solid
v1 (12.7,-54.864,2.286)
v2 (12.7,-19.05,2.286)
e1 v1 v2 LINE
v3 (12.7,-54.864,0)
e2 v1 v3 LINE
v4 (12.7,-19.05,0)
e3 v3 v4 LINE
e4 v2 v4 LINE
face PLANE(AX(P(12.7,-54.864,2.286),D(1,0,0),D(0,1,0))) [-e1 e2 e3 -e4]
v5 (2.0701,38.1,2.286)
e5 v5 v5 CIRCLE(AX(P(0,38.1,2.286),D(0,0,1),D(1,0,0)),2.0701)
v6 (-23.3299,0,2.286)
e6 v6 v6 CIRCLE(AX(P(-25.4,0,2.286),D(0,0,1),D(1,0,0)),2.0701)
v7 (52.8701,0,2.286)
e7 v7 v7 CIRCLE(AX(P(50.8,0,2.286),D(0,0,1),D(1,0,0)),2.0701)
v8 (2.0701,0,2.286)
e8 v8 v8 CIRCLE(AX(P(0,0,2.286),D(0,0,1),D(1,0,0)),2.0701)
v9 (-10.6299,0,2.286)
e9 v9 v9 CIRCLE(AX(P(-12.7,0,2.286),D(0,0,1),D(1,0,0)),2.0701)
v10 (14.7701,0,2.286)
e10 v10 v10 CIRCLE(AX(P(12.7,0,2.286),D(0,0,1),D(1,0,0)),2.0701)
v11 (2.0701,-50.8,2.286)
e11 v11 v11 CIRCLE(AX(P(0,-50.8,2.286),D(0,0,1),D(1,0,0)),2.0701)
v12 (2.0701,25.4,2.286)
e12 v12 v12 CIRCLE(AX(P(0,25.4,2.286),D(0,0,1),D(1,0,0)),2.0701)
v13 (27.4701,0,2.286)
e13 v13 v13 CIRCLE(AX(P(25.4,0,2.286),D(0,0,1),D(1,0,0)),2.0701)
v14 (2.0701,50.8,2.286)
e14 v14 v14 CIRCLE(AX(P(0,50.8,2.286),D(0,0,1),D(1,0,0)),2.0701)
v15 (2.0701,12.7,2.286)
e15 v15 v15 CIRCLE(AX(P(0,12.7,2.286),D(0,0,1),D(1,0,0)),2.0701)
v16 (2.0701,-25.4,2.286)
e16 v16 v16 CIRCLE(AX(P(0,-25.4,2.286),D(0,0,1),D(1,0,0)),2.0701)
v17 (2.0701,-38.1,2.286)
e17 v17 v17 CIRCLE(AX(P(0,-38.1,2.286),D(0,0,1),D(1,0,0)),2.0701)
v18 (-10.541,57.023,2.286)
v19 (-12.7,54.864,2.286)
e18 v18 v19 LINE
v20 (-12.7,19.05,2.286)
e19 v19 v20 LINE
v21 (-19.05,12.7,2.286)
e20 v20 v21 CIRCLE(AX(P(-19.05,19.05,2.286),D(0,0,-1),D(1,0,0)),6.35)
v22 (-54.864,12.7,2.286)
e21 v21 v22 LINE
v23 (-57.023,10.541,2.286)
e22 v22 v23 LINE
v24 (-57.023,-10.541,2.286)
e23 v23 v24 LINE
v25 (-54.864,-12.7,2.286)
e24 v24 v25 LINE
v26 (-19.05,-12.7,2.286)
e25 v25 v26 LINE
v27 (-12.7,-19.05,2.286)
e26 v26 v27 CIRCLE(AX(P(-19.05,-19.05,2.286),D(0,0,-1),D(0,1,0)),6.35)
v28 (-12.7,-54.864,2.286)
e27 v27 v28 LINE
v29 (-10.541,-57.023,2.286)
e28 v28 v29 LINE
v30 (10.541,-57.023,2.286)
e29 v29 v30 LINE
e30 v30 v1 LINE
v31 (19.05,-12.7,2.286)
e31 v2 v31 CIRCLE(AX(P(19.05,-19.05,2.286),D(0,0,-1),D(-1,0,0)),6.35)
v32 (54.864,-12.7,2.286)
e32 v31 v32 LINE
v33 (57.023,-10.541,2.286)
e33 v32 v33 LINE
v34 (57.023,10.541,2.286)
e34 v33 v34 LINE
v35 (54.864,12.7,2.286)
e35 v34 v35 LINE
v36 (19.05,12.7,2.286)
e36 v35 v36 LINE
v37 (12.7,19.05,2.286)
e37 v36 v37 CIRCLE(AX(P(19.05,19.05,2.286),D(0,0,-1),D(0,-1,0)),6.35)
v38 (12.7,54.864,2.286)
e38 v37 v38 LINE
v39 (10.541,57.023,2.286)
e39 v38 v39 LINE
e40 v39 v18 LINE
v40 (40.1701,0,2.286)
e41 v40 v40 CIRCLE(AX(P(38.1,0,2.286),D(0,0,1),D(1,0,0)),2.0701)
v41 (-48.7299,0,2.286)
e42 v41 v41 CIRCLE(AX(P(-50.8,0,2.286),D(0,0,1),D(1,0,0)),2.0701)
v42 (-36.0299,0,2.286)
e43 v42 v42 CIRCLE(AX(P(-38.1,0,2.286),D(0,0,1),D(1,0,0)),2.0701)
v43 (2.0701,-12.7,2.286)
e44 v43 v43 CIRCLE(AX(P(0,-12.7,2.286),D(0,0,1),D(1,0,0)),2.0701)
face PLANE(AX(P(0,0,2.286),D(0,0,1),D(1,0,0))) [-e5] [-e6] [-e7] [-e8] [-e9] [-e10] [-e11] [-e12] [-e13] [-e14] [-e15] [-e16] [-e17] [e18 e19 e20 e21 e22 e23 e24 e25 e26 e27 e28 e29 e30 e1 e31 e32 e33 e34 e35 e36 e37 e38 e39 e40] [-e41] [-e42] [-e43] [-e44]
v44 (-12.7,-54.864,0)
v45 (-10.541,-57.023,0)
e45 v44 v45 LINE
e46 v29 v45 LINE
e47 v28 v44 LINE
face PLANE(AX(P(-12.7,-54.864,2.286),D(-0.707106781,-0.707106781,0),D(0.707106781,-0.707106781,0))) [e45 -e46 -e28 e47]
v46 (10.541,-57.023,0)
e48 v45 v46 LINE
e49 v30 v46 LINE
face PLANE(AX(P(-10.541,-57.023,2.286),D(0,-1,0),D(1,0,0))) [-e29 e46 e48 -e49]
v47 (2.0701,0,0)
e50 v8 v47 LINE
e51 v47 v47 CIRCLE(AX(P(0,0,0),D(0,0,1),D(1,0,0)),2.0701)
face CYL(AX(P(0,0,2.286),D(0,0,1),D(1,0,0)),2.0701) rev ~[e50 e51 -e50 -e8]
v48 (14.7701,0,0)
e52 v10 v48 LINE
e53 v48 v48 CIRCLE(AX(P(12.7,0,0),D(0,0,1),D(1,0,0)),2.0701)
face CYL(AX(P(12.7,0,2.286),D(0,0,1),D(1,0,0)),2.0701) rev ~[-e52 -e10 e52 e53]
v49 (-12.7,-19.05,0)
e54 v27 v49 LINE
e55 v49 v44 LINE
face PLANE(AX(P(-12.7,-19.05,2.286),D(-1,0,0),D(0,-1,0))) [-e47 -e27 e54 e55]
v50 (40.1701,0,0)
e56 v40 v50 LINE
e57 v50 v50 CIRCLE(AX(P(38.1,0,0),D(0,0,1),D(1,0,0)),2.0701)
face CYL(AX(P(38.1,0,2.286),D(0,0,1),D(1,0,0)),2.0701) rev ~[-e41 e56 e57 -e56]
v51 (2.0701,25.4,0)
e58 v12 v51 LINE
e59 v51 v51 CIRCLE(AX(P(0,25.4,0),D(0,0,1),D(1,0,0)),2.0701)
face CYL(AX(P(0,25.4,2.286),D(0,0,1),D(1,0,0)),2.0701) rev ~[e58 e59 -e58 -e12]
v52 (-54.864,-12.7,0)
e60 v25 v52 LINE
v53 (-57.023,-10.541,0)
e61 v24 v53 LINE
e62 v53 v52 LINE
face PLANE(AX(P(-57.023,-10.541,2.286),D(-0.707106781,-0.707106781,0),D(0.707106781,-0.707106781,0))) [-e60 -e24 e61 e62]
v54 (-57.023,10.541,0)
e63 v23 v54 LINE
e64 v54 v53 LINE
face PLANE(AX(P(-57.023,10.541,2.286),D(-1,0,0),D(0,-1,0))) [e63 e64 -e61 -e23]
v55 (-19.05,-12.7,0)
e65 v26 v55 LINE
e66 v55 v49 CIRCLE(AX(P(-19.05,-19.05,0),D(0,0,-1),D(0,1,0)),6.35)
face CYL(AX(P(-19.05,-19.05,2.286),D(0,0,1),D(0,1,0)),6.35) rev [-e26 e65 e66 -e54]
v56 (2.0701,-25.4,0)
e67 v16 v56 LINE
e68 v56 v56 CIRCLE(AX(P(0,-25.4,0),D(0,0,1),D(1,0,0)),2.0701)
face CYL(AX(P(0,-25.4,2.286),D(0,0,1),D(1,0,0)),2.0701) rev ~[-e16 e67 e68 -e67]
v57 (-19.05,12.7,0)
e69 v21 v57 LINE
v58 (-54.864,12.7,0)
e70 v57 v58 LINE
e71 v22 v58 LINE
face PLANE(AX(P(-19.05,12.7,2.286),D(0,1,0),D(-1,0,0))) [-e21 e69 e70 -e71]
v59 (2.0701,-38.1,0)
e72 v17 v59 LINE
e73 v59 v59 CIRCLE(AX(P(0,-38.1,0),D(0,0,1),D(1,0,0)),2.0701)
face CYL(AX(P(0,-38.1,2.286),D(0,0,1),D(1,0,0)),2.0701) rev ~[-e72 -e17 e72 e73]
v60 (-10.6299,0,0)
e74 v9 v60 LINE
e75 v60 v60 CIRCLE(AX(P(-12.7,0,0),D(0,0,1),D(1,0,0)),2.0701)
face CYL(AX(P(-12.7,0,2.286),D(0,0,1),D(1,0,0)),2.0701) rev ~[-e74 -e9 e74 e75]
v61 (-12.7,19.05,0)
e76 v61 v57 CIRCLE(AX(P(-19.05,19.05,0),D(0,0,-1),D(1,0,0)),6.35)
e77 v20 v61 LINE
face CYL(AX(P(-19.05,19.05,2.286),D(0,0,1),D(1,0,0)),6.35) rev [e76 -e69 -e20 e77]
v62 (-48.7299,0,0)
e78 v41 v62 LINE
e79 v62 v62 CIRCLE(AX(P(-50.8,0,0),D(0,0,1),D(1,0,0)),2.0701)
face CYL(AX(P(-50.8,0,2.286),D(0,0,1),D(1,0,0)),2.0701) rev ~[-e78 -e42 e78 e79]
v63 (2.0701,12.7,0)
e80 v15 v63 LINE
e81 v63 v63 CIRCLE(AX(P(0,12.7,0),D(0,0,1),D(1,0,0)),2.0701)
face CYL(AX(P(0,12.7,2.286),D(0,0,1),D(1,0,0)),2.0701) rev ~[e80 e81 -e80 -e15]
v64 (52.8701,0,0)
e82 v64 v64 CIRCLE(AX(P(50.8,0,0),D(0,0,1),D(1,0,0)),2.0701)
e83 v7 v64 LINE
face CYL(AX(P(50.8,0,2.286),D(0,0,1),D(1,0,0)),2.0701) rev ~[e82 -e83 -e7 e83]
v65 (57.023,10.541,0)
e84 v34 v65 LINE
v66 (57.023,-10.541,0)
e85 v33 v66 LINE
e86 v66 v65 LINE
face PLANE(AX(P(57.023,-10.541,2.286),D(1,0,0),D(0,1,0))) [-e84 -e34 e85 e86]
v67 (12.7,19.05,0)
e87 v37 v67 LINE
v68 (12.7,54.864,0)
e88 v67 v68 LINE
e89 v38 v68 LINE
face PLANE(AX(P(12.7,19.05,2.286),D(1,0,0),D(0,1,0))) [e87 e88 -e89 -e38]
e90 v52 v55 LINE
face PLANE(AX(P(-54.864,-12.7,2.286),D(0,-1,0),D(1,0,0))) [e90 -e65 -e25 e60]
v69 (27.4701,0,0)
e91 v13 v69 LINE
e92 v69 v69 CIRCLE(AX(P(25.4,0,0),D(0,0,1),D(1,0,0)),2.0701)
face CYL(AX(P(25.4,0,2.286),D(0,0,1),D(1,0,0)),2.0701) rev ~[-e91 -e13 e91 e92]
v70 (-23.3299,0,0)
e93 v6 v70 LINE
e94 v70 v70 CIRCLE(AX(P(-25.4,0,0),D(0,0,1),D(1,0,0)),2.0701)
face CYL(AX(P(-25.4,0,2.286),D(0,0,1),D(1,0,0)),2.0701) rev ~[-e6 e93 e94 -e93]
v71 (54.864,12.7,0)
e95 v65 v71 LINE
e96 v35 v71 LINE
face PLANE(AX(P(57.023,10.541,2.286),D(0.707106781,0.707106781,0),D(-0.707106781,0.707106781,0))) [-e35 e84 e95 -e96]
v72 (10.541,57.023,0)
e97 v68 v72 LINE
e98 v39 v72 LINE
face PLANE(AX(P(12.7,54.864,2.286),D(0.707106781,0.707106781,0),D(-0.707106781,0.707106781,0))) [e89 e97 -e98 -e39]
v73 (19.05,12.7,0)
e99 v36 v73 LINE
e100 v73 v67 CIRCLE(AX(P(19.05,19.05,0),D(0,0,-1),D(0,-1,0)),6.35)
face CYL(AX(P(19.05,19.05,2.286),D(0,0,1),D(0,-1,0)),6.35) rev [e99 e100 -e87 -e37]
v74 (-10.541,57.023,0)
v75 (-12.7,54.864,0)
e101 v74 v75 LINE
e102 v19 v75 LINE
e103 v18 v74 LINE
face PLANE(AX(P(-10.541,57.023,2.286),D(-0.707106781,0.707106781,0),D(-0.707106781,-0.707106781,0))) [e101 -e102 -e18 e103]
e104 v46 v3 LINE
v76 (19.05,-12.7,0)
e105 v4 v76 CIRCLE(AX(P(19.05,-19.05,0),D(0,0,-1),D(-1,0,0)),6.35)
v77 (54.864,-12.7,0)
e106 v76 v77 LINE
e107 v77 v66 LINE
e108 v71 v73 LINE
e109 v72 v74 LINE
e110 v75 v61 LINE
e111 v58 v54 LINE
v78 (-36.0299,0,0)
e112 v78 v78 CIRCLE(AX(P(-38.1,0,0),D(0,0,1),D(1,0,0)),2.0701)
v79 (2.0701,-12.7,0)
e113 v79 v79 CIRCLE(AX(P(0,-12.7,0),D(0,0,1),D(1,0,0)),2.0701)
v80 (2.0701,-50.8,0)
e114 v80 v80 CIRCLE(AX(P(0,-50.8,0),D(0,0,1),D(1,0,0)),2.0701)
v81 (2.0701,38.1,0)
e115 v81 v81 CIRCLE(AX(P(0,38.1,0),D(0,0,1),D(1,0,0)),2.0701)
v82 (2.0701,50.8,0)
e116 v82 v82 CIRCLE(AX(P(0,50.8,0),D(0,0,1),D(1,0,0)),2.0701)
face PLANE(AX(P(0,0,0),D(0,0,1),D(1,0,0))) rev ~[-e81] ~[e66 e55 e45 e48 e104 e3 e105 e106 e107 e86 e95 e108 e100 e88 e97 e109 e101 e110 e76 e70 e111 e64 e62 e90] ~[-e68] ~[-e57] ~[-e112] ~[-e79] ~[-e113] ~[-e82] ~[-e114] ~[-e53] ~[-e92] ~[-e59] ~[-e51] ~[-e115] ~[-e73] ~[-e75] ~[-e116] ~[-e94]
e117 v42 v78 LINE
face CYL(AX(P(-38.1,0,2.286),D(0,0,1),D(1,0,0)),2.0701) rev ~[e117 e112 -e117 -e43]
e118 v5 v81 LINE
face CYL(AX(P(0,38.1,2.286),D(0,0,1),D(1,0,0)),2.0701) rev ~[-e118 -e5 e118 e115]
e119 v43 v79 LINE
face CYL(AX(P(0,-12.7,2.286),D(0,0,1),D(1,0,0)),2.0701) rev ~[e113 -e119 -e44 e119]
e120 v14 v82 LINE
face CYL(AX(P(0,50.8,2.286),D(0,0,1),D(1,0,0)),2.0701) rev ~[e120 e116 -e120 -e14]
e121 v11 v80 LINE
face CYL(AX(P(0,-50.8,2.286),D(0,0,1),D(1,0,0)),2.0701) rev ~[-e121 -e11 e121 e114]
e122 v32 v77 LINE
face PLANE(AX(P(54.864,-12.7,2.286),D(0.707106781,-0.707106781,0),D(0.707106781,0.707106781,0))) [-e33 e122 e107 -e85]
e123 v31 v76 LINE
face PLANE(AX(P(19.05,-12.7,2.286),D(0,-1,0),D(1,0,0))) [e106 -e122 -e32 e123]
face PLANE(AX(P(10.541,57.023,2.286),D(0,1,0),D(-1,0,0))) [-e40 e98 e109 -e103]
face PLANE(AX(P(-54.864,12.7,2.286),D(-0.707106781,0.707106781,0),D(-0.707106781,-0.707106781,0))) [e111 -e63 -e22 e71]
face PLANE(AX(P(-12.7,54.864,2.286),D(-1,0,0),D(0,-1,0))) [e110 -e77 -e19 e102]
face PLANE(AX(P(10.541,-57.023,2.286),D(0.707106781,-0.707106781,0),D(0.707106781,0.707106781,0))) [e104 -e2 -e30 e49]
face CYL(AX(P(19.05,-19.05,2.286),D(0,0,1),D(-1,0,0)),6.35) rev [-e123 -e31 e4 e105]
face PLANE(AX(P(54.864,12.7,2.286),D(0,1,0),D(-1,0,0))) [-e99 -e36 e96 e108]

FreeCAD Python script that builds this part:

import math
import FreeCAD as App
import Part
import Sketcher

V = App.Vector
Q = App.Units.Quantity

doc = App.newDocument("Part")
body = doc.addObject("PartDesign::Body", "Body")

# Sketch on XY plane
sketch1 = body.newObject("Sketcher::SketchObject", "Sketch")
sketch1.AttachmentSupport = (doc.getObject("XY_Plane"), [""])
sketch1.MapMode = "FlatFace"
sketch1.AttachmentOffset = App.Placement(V(0, 0, 0.09 * 25.4), App.Rotation())
sketch1.addGeometry([
    Part.LineSegment(V(57, 10.5, 0), V(54.9, 12.7, 0)),  # 0
    Part.LineSegment(V(54.9, 12.7, 0), V(19.1, 12.7, 0)),  # 1
    Part.ArcOfCircle(Part.Circle(V(19, 19, 0), V(0, 0, 1), 6.3), math.radians(180), math.radians(270)),  # 2
    Part.LineSegment(V(12.7, 19.1, 0), V(12.7, 54.9, 0)),  # 3
    Part.LineSegment(V(12.7, 54.9, 0), V(10.5, 57, 0)),  # 4
    Part.LineSegment(V(10.5, 57, 0), V(-10.5, 57, 0)),  # 5
    Part.LineSegment(V(-10.5, 57, 0), V(-12.7, 54.9, 0)),  # 6
    Part.LineSegment(V(-12.7, 54.9, 0), V(-12.7, 19.1, 0)),  # 7
    Part.ArcOfCircle(Part.Circle(V(-19, 19, 0), V(0, 0, 1), 6.3), math.radians(-90), math.radians(0)),  # 8
    Part.LineSegment(V(-19.1, 12.7, 0), V(-54.9, 12.7, 0)),  # 9
    Part.LineSegment(V(-54.9, 12.7, 0), V(-57, 10.5, 0)),  # 10
    Part.LineSegment(V(-57, 10.5, 0), V(-57, -10.5, 0)),  # 11
    Part.LineSegment(V(-57, -10.5, 0), V(-54.9, -12.7, 0)),  # 12
    Part.LineSegment(V(-54.9, -12.7, 0), V(-19.1, -12.7, 0)),  # 13
    Part.ArcOfCircle(Part.Circle(V(-19, -19, 0), V(0, 0, 1), 6.3), math.radians(0), math.radians(90)),  # 14
    Part.LineSegment(V(-12.7, -19.1, 0), V(-12.7, -54.9, 0)),  # 15
    Part.LineSegment(V(-12.7, -54.9, 0), V(-10.5, -57, 0)),  # 16
    Part.LineSegment(V(-10.5, -57, 0), V(10.5, -57, 0)),  # 17
    Part.LineSegment(V(10.5, -57, 0), V(12.7, -54.9, 0)),  # 18
    Part.LineSegment(V(12.7, -54.9, 0), V(12.7, -19.1, 0)),  # 19
    Part.ArcOfCircle(Part.Circle(V(19, -19, 0), V(0, 0, 1), 6.3), math.radians(90), math.radians(180)),  # 20
    Part.LineSegment(V(19.1, -12.7, 0), V(54.9, -12.7, 0)),  # 21
    Part.LineSegment(V(54.9, -12.7, 0), V(57, -10.5, 0)),  # 22
    Part.LineSegment(V(57, -10.5, 0), V(57, 10.5, 0)),  # 23
    Part.Circle(V(0, -50.8, 0), V(0, 0, 1), 2.1),  # 24
    Part.Circle(V(0, -38.1, 0), V(0, 0, 1), 2.1),  # 25
    Part.Circle(V(-50.8, 0, 0), V(0, 0, 1), 2.1),  # 26
    Part.Circle(V(-38.1, 0, 0), V(0, 0, 1), 2.1),  # 27
    Part.Circle(V(0, -25.4, 0), V(0, 0, 1), 2.1),  # 28
    Part.Circle(V(-25.4, 0, 0), V(0, 0, 1), 2.1),  # 29
    Part.Circle(V(0, -12.7, 0), V(0, 0, 1), 2.1),  # 30
    Part.Circle(V(-12.7, 0, 0), V(0, 0, 1), 2.1),  # 31
    Part.Circle(V(0, 0, 0), V(0, 0, 1), 2.1),  # 32
    Part.Circle(V(12.7, 0, 0), V(0, 0, 1), 2.1),  # 33
    Part.Circle(V(25.4, 0, 0), V(0, 0, 1), 2.1),  # 34
    Part.Circle(V(38.1, 0, 0), V(0, 0, 1), 2.1),  # 35
    Part.Circle(V(50.8, 0, 0), V(0, 0, 1), 2.1),  # 36
    Part.Circle(V(0, 12.7, 0), V(0, 0, 1), 2.1),  # 37
    Part.Circle(V(0, 25.4, 0), V(0, 0, 1), 2.1),  # 38
    Part.Circle(V(0, 38.1, 0), V(0, 0, 1), 2.1),  # 39
    Part.Circle(V(0, 50.8, 0), V(0, 0, 1), 2.1),  # 40
], False)
sketch1.addConstraint([
    Sketcher.Constraint("Coincident", 0, 2, 1, 1),
    Sketcher.Constraint("Tangent", 1, 2, 2, 2),
    Sketcher.Constraint("Tangent", 2, 1, 3, 1),
    Sketcher.Constraint("Coincident", 3, 2, 4, 1),
    Sketcher.Constraint("Coincident", 4, 2, 5, 1),
    Sketcher.Constraint("Coincident", 5, 2, 6, 1),
    Sketcher.Constraint("Coincident", 6, 2, 7, 1),
    Sketcher.Constraint("Tangent", 7, 2, 8, 2),
    Sketcher.Constraint("Tangent", 8, 1, 9, 1),
    Sketcher.Constraint("Coincident", 9, 2, 10, 1),
    Sketcher.Constraint("Coincident", 10, 2, 11, 1),
    Sketcher.Constraint("Coincident", 11, 2, 12, 1),
    Sketcher.Constraint("Coincident", 12, 2, 13, 1),
    Sketcher.Constraint("Tangent", 13, 2, 14, 2),
    Sketcher.Constraint("Tangent", 14, 1, 15, 1),
    Sketcher.Constraint("Coincident", 15, 2, 16, 1),
    Sketcher.Constraint("Coincident", 16, 2, 17, 1),
    Sketcher.Constraint("Coincident", 17, 2, 18, 1),
    Sketcher.Constraint("Coincident", 18, 2, 19, 1),
    Sketcher.Constraint("Tangent", 19, 2, 20, 2),
    Sketcher.Constraint("Tangent", 20, 1, 21, 1),
    Sketcher.Constraint("Coincident", 21, 2, 22, 1),
    Sketcher.Constraint("Coincident", 22, 2, 23, 1),
    Sketcher.Constraint("Coincident", 23, 2, 0, 1),
    Sketcher.Constraint("Horizontal", 1),
    Sketcher.Constraint("Vertical", 3),
    Sketcher.Constraint("Horizontal", 5),
    Sketcher.Constraint("Vertical", 7),
    Sketcher.Constraint("Horizontal", 9),
    Sketcher.Constraint("Vertical", 11),
    Sketcher.Constraint("Horizontal", 13),
    Sketcher.Constraint("Vertical", 15),
    Sketcher.Constraint("Horizontal", 17),
    Sketcher.Constraint("Vertical", 19),
    Sketcher.Constraint("Horizontal", 21),
    Sketcher.Constraint("Vertical", 23),
    Sketcher.Constraint("Coincident", 32, 3, -1, 1),
    Sketcher.Constraint("Equal", 2, 8),
    Sketcher.Constraint("Equal", 8, 14),
    Sketcher.Constraint("Equal", 14, 20),
    Sketcher.Constraint("Equal", 24, 25),
    Sketcher.Constraint("Equal", 25, 26),
    Sketcher.Constraint("Equal", 26, 27),
    Sketcher.Constraint("Equal", 27, 28),
    Sketcher.Constraint("Equal", 28, 29),
    Sketcher.Constraint("Equal", 29, 30),
    Sketcher.Constraint("Equal", 30, 31),
    Sketcher.Constraint("Equal", 31, 32),
    Sketcher.Constraint("Equal", 32, 33),
    Sketcher.Constraint("Equal", 33, 34),
    Sketcher.Constraint("Equal", 34, 35),
    Sketcher.Constraint("Equal", 35, 36),
    Sketcher.Constraint("Equal", 36, 37),
    Sketcher.Constraint("Equal", 37, 38),
    Sketcher.Constraint("Equal", 38, 39),
    Sketcher.Constraint("Equal", 39, 40),
    Sketcher.Constraint("Symmetric", 2, 3, 14, 3, -1, 1),
    Sketcher.Constraint("Symmetric", 8, 3, 20, 3, -1, 1),
    Sketcher.Constraint("Symmetric", 31, 3, 33, 3, -1, 1),
    Sketcher.Constraint("Symmetric", 29, 3, 34, 3, -1, 1),
    Sketcher.Constraint("Symmetric", 27, 3, 35, 3, -1, 1),
    Sketcher.Constraint("Symmetric", 26, 3, 36, 3, -1, 1),
    Sketcher.Constraint("Symmetric", 30, 3, 37, 3, -1, 1),
    Sketcher.Constraint("Symmetric", 28, 3, 38, 3, -1, 1),
    Sketcher.Constraint("Symmetric", 25, 3, 39, 3, -1, 1),
    Sketcher.Constraint("Symmetric", 24, 3, 40, 3, -1, 1),
    Sketcher.Constraint("Symmetric", 4, 2, 16, 2, -1, 1),
    Sketcher.Constraint("Symmetric", 10, 2, 22, 2, -1, 1),
    Sketcher.Constraint("Symmetric", 2, 3, 8, 3, -2),
    Sketcher.Constraint("PointOnObject", 24, 3, -2),
    Sketcher.Constraint("PointOnObject", 25, 3, -2),
    Sketcher.Constraint("PointOnObject", 26, 3, -1),
    Sketcher.Constraint("PointOnObject", 27, 3, -1),
    Sketcher.Constraint("PointOnObject", 28, 3, -2),
    Sketcher.Constraint("PointOnObject", 29, 3, -1),
    Sketcher.Constraint("PointOnObject", 30, 3, -2),
    Sketcher.Constraint("PointOnObject", 31, 3, -1),
    Sketcher.Constraint("Parallel", 0, 4),
    Sketcher.Constraint("Perpendicular", 4, 6),
    Sketcher.Constraint("Parallel", 6, 10),
    Sketcher.Constraint("Perpendicular", 10, 12),
    Sketcher.Constraint("Parallel", 12, 16),
    Sketcher.Constraint("Perpendicular", 16, 18),
    Sketcher.Constraint("Parallel", 18, 22),
    Sketcher.Constraint("Horizontal", 37, 3, 0, 2),
    Sketcher.Constraint("Horizontal", 3, 2, 6, 2),
    Sketcher.Constraint("Horizontal", 15, 2, 18, 2),
    Sketcher.Constraint("Horizontal", 11, 2, 22, 2),
    Sketcher.Constraint("Horizontal", 10, 2, 23, 2),
    Sketcher.Constraint("Vertical", 33, 3, 2, 1),
    Sketcher.Constraint("Vertical", 9, 2, 12, 2),
    Sketcher.Constraint("Equal", 21, 3),
    Sketcher.Constraint("Equal", 17, 11),
    Sketcher.Constraint("Equal", 0, 4),
    Sketcher.Constraint("Radius", 2, Q("0.25 in")),
    Sketcher.Constraint("Diameter", 24, Q("0.163 in")),
    Sketcher.Constraint("DistanceY", 24, 3, -1, 1, Q("2 in")),
    Sketcher.Constraint("DistanceX", 26, 3, -1, 1, Q("2 in")),
    Sketcher.Constraint("DistanceY", 28, 3, -1, 1, Q("1 in")),
    Sketcher.Constraint("DistanceX", 29, 3, -1, 1, Q("1 in")),
    Sketcher.Constraint("DistanceY", 25, 3, 30, 3, Q("1 in")),
    Sketcher.Constraint("DistanceX", 27, 3, 31, 3, Q("1 in")),
    Sketcher.Constraint("DistanceX", 31, 3, 33, 3, Q("1 in")),
    Sketcher.Constraint("DistanceX", 1, 2, 1, 1, Q("1.41 in")),
    Sketcher.Constraint("DistanceX", 5, 2, 5, 1, Q("0.83 in")),
])
pad1 = body.newObject("PartDesign::Pad", "Pad")
pad1.Profile = sketch1
pad1.Length = Q("0.09 in")
pad1.Reversed = True

doc.recompute()
